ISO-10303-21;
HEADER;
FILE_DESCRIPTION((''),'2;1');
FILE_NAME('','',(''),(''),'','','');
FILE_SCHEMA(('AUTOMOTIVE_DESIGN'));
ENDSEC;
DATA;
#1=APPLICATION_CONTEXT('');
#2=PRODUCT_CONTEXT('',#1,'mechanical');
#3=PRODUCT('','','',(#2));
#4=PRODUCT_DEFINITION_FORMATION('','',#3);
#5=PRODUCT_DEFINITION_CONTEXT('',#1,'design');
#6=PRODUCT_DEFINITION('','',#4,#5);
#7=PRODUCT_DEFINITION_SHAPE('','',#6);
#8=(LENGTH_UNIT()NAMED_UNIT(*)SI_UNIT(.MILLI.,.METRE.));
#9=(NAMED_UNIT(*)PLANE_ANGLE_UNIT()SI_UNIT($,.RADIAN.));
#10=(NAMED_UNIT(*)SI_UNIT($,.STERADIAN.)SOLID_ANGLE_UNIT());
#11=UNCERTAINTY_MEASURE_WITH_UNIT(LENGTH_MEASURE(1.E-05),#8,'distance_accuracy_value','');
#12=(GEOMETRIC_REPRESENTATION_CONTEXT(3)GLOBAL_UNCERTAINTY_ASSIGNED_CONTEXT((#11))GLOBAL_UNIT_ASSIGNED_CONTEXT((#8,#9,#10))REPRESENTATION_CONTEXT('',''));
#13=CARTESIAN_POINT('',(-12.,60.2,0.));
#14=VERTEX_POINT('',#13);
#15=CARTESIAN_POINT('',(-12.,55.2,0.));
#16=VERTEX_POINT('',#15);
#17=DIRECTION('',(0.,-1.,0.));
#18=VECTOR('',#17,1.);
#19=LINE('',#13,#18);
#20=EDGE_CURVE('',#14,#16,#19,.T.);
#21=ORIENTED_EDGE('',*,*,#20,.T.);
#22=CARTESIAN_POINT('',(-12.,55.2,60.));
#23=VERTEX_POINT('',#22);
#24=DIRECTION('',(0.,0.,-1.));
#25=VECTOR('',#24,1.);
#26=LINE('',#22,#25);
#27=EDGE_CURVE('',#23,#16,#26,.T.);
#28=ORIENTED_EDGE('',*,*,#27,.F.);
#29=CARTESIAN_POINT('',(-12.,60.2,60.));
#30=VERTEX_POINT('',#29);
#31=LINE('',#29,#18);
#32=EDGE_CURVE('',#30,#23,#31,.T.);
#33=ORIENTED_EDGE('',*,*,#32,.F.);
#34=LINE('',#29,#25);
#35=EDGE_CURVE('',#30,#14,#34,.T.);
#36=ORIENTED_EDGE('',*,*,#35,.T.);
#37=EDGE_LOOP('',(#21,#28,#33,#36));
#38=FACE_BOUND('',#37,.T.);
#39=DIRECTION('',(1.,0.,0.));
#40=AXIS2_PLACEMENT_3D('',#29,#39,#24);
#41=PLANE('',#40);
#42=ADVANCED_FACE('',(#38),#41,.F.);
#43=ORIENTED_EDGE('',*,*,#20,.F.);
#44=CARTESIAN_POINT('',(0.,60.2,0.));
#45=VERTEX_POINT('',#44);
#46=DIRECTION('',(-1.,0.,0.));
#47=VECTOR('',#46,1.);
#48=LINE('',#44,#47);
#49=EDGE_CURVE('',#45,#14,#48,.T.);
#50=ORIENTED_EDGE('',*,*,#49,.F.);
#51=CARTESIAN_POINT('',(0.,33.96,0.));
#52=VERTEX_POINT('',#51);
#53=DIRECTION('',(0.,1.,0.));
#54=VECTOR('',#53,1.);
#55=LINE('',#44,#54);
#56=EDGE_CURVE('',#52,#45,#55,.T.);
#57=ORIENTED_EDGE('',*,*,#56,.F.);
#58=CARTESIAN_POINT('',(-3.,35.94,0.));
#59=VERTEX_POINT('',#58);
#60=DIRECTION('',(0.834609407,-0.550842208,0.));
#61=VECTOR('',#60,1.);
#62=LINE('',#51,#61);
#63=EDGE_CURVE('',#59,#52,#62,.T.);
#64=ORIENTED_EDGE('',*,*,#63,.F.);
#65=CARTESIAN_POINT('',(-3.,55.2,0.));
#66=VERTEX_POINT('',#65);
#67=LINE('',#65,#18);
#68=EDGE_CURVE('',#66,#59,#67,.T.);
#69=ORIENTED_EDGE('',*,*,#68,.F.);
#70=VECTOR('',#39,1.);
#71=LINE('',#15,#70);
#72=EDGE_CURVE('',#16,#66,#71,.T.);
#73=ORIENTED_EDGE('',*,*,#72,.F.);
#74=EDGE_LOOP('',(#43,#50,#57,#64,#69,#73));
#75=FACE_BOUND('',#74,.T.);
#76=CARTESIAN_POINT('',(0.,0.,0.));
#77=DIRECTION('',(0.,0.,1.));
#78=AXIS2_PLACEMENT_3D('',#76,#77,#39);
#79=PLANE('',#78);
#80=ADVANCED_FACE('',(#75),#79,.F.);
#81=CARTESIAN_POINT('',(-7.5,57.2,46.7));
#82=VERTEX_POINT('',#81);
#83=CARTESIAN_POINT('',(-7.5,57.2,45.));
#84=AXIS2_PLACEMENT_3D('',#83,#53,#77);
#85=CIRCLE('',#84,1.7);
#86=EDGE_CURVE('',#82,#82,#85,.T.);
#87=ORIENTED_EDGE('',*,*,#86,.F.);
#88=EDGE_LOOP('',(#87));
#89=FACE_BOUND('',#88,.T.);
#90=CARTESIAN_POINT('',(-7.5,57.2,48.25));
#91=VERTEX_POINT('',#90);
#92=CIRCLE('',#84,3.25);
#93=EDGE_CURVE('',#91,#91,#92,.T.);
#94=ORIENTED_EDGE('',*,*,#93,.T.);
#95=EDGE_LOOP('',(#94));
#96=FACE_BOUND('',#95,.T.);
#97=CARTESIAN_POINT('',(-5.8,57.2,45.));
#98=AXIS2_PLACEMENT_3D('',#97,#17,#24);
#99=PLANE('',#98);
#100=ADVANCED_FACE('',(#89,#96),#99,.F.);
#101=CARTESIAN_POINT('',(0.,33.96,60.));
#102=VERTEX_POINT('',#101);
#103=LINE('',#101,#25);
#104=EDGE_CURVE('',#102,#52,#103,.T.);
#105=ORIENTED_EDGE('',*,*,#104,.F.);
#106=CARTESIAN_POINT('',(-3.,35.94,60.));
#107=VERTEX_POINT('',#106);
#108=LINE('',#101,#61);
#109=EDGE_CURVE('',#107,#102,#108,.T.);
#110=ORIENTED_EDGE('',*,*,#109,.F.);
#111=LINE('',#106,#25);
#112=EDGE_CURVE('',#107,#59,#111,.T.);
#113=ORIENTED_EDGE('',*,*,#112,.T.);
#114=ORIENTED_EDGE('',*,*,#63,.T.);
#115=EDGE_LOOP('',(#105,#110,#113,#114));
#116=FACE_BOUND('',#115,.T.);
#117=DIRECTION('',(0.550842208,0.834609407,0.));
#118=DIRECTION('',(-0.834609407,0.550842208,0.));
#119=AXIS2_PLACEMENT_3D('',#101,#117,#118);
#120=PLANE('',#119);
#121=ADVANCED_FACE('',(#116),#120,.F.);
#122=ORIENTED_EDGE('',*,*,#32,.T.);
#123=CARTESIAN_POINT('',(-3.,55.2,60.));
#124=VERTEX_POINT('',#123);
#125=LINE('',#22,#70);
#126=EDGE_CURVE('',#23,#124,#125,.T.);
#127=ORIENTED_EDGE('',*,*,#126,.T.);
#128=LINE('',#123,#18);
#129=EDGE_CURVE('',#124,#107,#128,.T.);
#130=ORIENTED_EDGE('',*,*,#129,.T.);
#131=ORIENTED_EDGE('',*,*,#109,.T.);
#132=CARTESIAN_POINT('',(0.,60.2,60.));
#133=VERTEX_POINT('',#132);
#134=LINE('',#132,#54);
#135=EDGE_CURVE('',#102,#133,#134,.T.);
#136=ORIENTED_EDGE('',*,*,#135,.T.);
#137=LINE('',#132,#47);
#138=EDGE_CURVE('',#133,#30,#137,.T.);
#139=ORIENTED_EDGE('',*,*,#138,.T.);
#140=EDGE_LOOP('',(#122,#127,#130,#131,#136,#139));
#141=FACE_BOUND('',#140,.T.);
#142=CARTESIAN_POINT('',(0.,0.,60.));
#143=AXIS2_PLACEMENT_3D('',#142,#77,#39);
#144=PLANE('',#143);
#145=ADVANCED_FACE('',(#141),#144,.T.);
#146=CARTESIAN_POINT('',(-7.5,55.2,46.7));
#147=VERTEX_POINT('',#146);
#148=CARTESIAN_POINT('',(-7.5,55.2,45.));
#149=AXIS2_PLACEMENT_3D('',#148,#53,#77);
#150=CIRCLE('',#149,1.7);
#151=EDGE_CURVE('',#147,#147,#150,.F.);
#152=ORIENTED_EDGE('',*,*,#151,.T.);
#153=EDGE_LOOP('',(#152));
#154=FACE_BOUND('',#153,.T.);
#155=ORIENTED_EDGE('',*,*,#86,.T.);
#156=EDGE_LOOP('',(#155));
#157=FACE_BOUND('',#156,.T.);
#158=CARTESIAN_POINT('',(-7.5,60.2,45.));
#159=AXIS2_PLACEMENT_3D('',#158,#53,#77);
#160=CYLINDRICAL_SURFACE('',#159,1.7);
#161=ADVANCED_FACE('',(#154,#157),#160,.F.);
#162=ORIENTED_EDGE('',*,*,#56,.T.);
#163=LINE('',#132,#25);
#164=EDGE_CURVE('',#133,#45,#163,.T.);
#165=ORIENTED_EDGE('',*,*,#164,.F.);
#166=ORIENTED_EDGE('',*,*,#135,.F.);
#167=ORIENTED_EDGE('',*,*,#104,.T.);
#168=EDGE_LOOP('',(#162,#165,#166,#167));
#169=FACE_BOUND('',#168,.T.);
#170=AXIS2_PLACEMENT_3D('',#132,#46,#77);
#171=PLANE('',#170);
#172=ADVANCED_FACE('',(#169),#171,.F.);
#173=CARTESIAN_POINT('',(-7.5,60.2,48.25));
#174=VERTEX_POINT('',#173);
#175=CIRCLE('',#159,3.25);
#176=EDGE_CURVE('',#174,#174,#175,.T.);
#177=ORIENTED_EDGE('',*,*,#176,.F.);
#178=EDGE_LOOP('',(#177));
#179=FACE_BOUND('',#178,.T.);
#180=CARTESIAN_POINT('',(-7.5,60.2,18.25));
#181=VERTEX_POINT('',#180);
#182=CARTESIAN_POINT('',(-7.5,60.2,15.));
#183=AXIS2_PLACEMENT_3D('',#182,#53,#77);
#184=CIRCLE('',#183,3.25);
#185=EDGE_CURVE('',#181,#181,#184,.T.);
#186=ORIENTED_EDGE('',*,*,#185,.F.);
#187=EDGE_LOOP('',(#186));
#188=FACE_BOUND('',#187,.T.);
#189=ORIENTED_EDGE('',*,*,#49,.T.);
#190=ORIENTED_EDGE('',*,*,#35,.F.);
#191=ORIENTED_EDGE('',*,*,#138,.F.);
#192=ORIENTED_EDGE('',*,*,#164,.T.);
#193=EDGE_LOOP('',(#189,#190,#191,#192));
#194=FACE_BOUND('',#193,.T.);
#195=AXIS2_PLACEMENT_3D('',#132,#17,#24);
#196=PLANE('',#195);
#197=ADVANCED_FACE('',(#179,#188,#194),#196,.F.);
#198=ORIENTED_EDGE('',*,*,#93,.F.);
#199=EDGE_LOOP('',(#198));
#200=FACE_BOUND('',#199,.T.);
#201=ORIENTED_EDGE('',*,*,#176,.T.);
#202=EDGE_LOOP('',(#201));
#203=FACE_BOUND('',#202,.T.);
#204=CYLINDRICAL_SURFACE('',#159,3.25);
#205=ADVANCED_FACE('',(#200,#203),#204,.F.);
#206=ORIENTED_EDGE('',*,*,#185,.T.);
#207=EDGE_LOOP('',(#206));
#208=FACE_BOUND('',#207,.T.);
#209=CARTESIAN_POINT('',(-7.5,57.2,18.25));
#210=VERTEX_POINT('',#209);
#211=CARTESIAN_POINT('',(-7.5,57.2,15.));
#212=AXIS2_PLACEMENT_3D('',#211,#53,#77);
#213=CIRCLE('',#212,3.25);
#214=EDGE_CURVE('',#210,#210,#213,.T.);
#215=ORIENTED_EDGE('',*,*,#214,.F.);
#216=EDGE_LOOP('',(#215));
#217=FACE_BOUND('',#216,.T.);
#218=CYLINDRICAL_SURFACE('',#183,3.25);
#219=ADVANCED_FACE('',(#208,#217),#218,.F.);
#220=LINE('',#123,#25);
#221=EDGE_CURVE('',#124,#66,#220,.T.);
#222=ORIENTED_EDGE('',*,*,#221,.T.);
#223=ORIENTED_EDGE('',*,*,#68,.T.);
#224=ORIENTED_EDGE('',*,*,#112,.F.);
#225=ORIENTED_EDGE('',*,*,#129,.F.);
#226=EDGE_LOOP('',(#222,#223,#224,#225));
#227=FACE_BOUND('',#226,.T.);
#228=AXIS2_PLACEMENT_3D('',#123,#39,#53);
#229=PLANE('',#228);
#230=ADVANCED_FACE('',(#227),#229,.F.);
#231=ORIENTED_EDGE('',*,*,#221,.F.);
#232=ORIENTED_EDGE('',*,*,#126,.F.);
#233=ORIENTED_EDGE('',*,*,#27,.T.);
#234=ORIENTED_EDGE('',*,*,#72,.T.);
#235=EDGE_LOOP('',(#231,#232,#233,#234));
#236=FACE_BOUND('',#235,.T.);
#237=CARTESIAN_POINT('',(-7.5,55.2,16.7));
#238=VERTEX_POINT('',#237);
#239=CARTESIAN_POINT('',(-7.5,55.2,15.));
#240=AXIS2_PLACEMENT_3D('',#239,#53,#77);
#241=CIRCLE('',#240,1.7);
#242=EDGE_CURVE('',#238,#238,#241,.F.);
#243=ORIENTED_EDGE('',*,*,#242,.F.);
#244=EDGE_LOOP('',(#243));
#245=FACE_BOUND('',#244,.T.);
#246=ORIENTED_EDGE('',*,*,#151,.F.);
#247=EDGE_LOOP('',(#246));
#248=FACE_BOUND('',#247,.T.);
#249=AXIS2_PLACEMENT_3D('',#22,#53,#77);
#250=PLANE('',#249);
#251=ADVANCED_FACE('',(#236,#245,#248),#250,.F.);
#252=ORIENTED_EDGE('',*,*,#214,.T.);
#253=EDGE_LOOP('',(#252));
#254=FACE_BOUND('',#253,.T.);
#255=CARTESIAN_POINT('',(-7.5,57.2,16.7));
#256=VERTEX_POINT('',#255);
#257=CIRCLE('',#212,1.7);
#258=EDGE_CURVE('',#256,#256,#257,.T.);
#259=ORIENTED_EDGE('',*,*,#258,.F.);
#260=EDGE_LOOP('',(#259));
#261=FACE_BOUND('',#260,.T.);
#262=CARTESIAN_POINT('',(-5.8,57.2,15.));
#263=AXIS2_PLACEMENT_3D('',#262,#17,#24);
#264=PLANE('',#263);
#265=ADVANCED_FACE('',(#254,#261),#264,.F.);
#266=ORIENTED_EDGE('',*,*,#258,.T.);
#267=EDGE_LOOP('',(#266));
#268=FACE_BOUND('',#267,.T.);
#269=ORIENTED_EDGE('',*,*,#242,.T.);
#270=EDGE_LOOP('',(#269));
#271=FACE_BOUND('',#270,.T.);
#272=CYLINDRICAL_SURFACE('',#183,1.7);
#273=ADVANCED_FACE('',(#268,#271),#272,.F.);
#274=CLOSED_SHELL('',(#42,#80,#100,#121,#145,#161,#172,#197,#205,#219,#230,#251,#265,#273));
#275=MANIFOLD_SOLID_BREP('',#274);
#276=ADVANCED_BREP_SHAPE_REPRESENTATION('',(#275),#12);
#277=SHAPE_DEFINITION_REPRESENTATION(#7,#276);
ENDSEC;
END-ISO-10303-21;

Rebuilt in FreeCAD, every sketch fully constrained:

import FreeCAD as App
import Part
import Sketcher
Q = App.Units.Quantity


def add_polygon(sketch, points):
    """Adds a closed chain of lines whose ends are joined by coincident constraints."""
    first, n = sketch.GeometryCount, len(points)
    for a, b in zip(points, points[1:] + points[:1]):
        sketch.addGeometry(Part.LineSegment(App.Vector(*a, 0), App.Vector(*b, 0)), False)
    for i in range(n):
        sketch.addConstraint(Sketcher.Constraint("Coincident", first + i, 2, first + (i + 1) % n, 1))

doc = App.newDocument("Part")
body = doc.addObject("PartDesign::Body", "Body")

# Sketch on XY plane
sketch1 = doc.addObject("Sketcher::SketchObject", "Sketch")
body.addObject(sketch1)
sketch1.AttachmentSupport = (doc.XY_Plane, [""])
sketch1.MapMode = "FlatFace"
add_polygon(sketch1, [(0, 34), (0, 60.2), (-12, 60.2), (-12, 55.2), (-3, 55.2), (-3, 35.9)])  # lines 0-5
sketch1.addConstraint(Sketcher.Constraint("Vertical", 0))
sketch1.addConstraint(Sketcher.Constraint("Horizontal", 1))
sketch1.addConstraint(Sketcher.Constraint("Vertical", 2))
sketch1.addConstraint(Sketcher.Constraint("Horizontal", 3))
sketch1.addConstraint(Sketcher.Constraint("Vertical", 4))
sketch1.addConstraint(Sketcher.Constraint("PointOnObject", 0, 2, -2))
sketch1.addConstraint(Sketcher.Constraint("DistanceX", 1, 2, 1, 1, Q("12 mm")))
sketch1.addConstraint(Sketcher.Constraint("DistanceX", 3, 1, 3, 2, Q("9 mm")))
sketch1.addConstraint(Sketcher.Constraint("DistanceY", 2, 2, 2, 1, Q("5 mm")))
sketch1.addConstraint(Sketcher.Constraint("DistanceY", 0, 1, 0, 2, Q("26.24 mm")))
sketch1.addConstraint(Sketcher.Constraint("DistanceY", 4, 2, 4, 1, Q("19.26 mm")))
sketch1.addConstraint(Sketcher.Constraint("DistanceY", -1, 1, 0, 2, Q("60.2 mm")))
pad1 = doc.addObject("PartDesign::Pad", "Pad")
body.addObject(pad1)
pad1.Profile = sketch1
pad1.Length = 60

# Sketch on XZ plane
sketch2 = doc.addObject("Sketcher::SketchObject", "Sketch001")
body.addObject(sketch2)
sketch2.AttachmentSupport = (doc.XZ_Plane, [""])
sketch2.MapMode = "FlatFace"
sketch2.AttachmentOffset = App.Placement(App.Vector(0, 0, -60.2), App.Rotation())
sketch2.addGeometry(Part.Circle(App.Vector(-7.5, 15, 0), App.Vector(0, 0, 1), 1.7), False)
sketch2.addGeometry(Part.Circle(App.Vector(-7.5, 45, 0), App.Vector(0, 0, 1), 1.7), False)
sketch2.addConstraint(Sketcher.Constraint("Equal", 0, 1))
sketch2.addConstraint(Sketcher.Constraint("Vertical", 0, 3, 1, 3))
sketch2.addConstraint(Sketcher.Constraint("Diameter", 0, Q("3.4 mm")))
sketch2.addConstraint(Sketcher.Constraint("DistanceY", -1, 1, 0, 3, Q("15 mm")))
sketch2.addConstraint(Sketcher.Constraint("DistanceY", -1, 1, 1, 3, Q("45 mm")))
sketch2.addConstraint(Sketcher.Constraint("DistanceX", 0, 3, -1, 1, Q("7.5 mm")))
doc.recompute()
hole = doc.addObject("PartDesign::Hole", "Hole")
body.addObject(hole)
hole.Profile = sketch2
hole.ThreadType = "None"
hole.Diameter = 3.4
hole.DepthType = "Dimension"
hole.Depth = 5
hole.DrillPoint = "Angled"
hole.DrillPointAngle = 118
hole.HoleCutType = "Counterbore"
hole.HoleCutDiameter = 6.5
hole.HoleCutDepth = 3
hole.Reversed = True

doc.recompute()
